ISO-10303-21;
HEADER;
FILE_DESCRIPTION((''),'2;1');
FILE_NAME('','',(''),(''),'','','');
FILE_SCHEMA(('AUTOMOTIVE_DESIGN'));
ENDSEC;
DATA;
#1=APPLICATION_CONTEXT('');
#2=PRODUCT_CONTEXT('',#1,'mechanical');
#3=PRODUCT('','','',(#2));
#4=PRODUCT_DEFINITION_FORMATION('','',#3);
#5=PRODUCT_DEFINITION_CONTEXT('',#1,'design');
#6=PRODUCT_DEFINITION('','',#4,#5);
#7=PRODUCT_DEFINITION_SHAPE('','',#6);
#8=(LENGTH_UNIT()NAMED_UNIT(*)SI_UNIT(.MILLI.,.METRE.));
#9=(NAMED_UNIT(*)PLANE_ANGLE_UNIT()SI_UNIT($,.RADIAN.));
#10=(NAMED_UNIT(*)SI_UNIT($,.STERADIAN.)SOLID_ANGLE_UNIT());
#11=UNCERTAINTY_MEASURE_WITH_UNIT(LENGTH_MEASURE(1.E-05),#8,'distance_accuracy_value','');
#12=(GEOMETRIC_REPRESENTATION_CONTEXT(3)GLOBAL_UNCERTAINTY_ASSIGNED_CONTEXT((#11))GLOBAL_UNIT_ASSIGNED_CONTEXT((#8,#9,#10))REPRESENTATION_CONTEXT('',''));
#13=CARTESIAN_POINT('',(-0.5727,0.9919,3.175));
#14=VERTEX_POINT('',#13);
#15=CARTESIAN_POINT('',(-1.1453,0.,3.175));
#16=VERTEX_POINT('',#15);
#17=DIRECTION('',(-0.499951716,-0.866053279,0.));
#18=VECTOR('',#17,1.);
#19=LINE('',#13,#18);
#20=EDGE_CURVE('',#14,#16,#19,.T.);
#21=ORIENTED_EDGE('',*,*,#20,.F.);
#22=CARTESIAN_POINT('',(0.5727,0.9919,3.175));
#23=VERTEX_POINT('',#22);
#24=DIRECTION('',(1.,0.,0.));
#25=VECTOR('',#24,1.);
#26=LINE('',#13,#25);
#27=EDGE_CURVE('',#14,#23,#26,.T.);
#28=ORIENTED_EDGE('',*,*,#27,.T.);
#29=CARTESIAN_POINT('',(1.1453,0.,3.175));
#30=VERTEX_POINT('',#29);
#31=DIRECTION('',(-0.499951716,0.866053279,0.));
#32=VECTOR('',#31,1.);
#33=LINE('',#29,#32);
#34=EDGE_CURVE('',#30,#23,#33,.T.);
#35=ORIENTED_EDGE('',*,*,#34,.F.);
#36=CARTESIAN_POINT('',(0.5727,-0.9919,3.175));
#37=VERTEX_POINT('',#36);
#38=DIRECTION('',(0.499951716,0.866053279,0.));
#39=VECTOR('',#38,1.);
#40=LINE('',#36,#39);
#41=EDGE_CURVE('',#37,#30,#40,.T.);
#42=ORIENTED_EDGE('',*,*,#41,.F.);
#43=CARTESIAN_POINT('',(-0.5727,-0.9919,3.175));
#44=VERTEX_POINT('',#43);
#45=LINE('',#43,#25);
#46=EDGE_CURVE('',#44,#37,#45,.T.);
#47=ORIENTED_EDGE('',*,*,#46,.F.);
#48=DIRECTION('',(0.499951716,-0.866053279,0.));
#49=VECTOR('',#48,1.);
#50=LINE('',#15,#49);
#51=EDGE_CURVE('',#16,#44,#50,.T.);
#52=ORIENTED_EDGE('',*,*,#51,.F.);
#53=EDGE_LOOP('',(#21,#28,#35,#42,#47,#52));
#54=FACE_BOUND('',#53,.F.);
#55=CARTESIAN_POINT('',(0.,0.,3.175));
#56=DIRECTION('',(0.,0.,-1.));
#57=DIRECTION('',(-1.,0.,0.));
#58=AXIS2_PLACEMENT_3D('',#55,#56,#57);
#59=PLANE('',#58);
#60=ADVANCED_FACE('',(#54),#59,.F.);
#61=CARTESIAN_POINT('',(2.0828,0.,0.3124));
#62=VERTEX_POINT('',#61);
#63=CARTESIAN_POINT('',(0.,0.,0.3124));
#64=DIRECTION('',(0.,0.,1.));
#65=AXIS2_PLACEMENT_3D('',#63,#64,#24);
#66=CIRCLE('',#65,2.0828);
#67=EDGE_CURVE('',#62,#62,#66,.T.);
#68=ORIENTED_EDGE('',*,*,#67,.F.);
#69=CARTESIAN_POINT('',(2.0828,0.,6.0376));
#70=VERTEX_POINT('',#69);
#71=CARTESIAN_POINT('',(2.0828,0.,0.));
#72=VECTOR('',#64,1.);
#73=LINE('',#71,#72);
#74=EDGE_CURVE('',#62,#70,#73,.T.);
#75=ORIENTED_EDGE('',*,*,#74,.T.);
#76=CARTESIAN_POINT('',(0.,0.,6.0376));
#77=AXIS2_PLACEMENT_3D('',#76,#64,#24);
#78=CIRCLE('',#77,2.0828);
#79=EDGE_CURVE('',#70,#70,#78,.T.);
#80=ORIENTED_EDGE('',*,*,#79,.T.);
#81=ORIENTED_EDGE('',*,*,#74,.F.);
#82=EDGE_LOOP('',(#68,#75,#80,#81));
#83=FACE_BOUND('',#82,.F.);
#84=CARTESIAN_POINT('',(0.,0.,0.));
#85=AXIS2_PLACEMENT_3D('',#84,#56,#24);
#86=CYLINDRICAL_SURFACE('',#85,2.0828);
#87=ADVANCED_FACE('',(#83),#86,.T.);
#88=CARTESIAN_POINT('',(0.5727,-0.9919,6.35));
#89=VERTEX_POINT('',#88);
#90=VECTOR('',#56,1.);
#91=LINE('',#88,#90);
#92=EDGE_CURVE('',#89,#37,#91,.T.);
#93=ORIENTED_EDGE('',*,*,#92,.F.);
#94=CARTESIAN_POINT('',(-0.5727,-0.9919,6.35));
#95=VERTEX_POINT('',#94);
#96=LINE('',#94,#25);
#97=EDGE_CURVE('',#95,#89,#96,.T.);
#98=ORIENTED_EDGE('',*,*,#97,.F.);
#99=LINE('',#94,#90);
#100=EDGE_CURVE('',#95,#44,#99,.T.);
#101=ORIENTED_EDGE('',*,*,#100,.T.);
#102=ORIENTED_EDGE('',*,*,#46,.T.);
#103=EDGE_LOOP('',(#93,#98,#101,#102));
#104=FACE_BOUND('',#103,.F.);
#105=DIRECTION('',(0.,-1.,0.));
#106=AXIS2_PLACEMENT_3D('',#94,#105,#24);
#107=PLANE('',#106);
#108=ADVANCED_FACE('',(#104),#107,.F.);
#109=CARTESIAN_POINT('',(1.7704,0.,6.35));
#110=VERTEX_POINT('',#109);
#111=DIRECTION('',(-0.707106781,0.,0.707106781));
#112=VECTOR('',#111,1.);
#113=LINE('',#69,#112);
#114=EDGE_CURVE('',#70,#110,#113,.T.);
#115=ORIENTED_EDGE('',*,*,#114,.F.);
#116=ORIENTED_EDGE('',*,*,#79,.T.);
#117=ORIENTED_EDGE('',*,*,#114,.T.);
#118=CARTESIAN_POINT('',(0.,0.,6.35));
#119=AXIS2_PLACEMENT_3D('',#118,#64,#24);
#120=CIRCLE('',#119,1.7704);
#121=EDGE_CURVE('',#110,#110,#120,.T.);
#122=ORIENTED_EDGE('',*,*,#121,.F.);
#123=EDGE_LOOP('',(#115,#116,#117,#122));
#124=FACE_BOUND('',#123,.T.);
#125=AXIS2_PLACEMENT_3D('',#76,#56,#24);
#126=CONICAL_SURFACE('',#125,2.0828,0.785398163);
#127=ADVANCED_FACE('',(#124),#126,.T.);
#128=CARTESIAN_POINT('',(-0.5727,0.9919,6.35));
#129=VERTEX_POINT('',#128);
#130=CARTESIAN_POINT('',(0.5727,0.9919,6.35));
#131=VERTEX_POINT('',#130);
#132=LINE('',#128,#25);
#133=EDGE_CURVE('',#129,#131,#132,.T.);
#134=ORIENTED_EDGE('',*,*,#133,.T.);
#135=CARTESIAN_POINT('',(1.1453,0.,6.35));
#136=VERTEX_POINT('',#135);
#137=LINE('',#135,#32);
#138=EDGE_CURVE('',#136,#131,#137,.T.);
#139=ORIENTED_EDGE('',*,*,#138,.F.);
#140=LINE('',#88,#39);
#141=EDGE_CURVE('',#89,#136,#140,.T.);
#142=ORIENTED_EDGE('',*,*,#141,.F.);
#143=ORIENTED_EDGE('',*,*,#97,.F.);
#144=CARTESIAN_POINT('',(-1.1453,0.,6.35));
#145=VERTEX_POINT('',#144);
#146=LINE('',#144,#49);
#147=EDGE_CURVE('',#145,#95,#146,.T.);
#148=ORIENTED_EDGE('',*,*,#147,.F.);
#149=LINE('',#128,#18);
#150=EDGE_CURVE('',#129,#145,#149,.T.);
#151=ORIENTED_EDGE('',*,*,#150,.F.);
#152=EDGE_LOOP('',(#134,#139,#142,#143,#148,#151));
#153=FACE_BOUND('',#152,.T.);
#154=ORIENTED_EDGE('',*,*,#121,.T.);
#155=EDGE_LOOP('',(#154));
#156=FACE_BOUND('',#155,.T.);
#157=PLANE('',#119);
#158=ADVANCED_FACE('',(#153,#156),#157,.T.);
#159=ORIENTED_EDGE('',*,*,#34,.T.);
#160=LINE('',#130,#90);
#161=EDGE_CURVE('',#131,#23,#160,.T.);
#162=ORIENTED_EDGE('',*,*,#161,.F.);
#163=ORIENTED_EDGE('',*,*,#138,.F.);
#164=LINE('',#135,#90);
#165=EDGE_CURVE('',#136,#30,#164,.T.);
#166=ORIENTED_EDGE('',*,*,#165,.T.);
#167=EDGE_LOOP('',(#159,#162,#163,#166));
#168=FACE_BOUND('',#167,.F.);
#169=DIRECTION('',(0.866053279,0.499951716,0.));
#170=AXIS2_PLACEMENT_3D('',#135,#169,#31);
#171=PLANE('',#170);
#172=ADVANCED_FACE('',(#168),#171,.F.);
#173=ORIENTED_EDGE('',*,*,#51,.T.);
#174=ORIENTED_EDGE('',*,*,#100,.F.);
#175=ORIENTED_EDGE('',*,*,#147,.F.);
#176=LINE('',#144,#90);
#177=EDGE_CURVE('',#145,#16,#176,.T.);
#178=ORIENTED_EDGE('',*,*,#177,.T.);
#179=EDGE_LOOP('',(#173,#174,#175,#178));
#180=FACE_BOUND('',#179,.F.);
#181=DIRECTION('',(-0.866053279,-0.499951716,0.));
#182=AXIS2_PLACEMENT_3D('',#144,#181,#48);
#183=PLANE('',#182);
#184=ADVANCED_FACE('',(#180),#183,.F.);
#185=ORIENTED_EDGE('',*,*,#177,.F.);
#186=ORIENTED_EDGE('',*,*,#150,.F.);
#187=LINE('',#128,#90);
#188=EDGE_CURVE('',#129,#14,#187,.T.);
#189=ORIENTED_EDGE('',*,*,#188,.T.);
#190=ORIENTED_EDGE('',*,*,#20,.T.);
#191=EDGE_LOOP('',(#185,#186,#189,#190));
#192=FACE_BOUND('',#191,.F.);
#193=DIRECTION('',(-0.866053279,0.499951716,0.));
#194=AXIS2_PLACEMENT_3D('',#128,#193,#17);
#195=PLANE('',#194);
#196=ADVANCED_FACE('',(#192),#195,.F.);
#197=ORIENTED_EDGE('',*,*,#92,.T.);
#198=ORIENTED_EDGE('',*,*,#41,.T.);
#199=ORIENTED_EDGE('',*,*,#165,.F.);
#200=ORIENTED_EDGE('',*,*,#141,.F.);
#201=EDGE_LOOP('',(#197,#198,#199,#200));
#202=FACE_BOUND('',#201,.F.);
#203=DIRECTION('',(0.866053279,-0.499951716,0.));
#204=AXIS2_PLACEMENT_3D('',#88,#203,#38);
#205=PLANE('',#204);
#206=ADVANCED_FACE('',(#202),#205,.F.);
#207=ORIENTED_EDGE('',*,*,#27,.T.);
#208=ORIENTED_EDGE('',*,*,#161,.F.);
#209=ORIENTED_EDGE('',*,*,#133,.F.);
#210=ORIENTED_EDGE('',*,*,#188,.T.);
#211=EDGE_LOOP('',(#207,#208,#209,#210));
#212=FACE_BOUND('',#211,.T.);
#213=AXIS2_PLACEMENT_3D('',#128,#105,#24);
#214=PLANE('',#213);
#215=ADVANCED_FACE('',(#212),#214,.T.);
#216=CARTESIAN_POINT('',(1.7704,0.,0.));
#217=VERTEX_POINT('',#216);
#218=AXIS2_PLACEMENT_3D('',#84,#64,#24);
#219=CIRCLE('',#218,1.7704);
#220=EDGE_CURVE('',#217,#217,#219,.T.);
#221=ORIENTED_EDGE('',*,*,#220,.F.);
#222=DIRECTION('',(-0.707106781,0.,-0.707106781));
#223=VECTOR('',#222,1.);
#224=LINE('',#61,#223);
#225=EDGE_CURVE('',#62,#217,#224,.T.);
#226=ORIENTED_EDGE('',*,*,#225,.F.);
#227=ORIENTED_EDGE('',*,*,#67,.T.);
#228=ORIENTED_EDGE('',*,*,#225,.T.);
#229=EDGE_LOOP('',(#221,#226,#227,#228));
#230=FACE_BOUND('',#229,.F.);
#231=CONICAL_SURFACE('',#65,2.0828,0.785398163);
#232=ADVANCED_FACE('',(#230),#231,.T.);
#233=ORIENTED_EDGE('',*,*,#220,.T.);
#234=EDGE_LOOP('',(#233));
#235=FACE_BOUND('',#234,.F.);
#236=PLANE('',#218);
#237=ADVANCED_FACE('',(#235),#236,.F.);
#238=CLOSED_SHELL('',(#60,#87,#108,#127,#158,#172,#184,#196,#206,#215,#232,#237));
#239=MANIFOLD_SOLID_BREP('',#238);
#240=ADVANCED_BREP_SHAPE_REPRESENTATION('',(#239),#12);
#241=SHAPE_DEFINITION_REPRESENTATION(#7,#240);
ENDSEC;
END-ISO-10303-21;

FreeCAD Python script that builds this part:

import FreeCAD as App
import Part
import Sketcher
Q = App.Units.Quantity


def edges_at(feature, points):
    """Names of the edges that pass closest to the given points."""
    edges = feature.Shape.Edges
    near = lambda p: min(range(len(edges)), key=lambda i: edges[i].distToShape(Part.Vertex(*p))[0])
    return sorted({f"Edge{near(p) + 1}" for p in points})

doc = App.newDocument("Part")
body = doc.addObject("PartDesign::Body", "Body")

# Sketch on XY plane
sketch1 = body.newObject("Sketcher::SketchObject", "Sketch")
sketch1.AttachmentSupport = (doc.getObject("XY_Plane"), [""])
sketch1.MapMode = "FlatFace"
sketch1.addGeometry(Part.Circle(App.Vector(0, 0, 0), App.Vector(0, 0, 1), 2.0828), False)
sketch1.addConstraint(Sketcher.Constraint("Coincident", 0, 3, -1, 1))
sketch1.addConstraint(Sketcher.Constraint("Diameter", 0, Q("0.164 in")))
pad1 = body.newObject("PartDesign::Pad", "Pad")
pad1.Profile = sketch1
pad1.Length = Q("0.25 in")
doc.recompute()

chamfer = body.newObject("PartDesign::Chamfer", "Chamfer")
chamfer.Base = (pad1, edges_at(pad1, [(-2.083, 0, 0), (-2.083, 0, 6.35)]))
chamfer.Size = Q("0.0122992 in")

# Sketch on XY plane
sketch2 = body.newObject("Sketcher::SketchObject", "Sketch001")
sketch2.AttachmentSupport = (doc.getObject("XY_Plane"), [""])
sketch2.MapMode = "FlatFace"
sketch2.AttachmentOffset = App.Placement(App.Vector(0, 0, 0.25 * 25.4), App.Rotation())
sketch2.addGeometry(Part.LineSegment(App.Vector(0.5727, 0.9919, 0), App.Vector(-0.5727, 0.9919, 0)), False)
sketch2.addGeometry(Part.LineSegment(App.Vector(-0.5727, 0.9919, 0), App.Vector(-1.1453, 0, 0)), False)
sketch2.addGeometry(Part.LineSegment(App.Vector(-1.1453, 0, 0), App.Vector(-0.5727, -0.9919, 0)), False)
sketch2.addGeometry(Part.LineSegment(App.Vector(-0.5727, -0.9919, 0), App.Vector(0.5727, -0.9919, 0)), False)
sketch2.addGeometry(Part.LineSegment(App.Vector(0.5727, -0.9919, 0), App.Vector(1.1453, 0, 0)), False)
sketch2.addGeometry(Part.LineSegment(App.Vector(1.1453, 0, 0), App.Vector(0.5727, 0.9919, 0)), False)
sketch2.addConstraint(Sketcher.Constraint("Coincident", 0, 2, 1, 1))
sketch2.addConstraint(Sketcher.Constraint("Coincident", 1, 2, 2, 1))
sketch2.addConstraint(Sketcher.Constraint("Coincident", 2, 2, 3, 1))
sketch2.addConstraint(Sketcher.Constraint("Coincident", 3, 2, 4, 1))
sketch2.addConstraint(Sketcher.Constraint("Coincident", 4, 2, 5, 1))
sketch2.addConstraint(Sketcher.Constraint("Coincident", 5, 2, 0, 1))
sketch2.addConstraint(Sketcher.Constraint("Horizontal", 0))
sketch2.addConstraint(Sketcher.Constraint("Horizontal", 3))
sketch2.addConstraint(Sketcher.Constraint("Symmetric", 0, 2, 3, 2, -1, 1))
sketch2.addConstraint(Sketcher.Constraint("Symmetric", 1, 2, 4, 2, -1, 1))
sketch2.addConstraint(Sketcher.Constraint("PointOnObject", 1, 2, -1))
sketch2.addConstraint(Sketcher.Constraint("Parallel", 2, 5))
sketch2.addConstraint(Sketcher.Constraint("Vertical", 0, 2, 2, 2))
sketch2.addConstraint(Sketcher.Constraint("DistanceX", 0, 2, 0, 1, Q("0.0451 in")))
sketch2.addConstraint(Sketcher.Constraint("Distance", 1, Q("0.0451 in")))
sketch2.addConstraint(Sketcher.Constraint("DistanceX", 1, 2, -1, 1, Q("0.0451 in")))
pocket1 = body.newObject("PartDesign::Pocket", "Pocket")
pocket1.Profile = sketch2
pocket1.Length = Q("0.125 in")

doc.recompute()
